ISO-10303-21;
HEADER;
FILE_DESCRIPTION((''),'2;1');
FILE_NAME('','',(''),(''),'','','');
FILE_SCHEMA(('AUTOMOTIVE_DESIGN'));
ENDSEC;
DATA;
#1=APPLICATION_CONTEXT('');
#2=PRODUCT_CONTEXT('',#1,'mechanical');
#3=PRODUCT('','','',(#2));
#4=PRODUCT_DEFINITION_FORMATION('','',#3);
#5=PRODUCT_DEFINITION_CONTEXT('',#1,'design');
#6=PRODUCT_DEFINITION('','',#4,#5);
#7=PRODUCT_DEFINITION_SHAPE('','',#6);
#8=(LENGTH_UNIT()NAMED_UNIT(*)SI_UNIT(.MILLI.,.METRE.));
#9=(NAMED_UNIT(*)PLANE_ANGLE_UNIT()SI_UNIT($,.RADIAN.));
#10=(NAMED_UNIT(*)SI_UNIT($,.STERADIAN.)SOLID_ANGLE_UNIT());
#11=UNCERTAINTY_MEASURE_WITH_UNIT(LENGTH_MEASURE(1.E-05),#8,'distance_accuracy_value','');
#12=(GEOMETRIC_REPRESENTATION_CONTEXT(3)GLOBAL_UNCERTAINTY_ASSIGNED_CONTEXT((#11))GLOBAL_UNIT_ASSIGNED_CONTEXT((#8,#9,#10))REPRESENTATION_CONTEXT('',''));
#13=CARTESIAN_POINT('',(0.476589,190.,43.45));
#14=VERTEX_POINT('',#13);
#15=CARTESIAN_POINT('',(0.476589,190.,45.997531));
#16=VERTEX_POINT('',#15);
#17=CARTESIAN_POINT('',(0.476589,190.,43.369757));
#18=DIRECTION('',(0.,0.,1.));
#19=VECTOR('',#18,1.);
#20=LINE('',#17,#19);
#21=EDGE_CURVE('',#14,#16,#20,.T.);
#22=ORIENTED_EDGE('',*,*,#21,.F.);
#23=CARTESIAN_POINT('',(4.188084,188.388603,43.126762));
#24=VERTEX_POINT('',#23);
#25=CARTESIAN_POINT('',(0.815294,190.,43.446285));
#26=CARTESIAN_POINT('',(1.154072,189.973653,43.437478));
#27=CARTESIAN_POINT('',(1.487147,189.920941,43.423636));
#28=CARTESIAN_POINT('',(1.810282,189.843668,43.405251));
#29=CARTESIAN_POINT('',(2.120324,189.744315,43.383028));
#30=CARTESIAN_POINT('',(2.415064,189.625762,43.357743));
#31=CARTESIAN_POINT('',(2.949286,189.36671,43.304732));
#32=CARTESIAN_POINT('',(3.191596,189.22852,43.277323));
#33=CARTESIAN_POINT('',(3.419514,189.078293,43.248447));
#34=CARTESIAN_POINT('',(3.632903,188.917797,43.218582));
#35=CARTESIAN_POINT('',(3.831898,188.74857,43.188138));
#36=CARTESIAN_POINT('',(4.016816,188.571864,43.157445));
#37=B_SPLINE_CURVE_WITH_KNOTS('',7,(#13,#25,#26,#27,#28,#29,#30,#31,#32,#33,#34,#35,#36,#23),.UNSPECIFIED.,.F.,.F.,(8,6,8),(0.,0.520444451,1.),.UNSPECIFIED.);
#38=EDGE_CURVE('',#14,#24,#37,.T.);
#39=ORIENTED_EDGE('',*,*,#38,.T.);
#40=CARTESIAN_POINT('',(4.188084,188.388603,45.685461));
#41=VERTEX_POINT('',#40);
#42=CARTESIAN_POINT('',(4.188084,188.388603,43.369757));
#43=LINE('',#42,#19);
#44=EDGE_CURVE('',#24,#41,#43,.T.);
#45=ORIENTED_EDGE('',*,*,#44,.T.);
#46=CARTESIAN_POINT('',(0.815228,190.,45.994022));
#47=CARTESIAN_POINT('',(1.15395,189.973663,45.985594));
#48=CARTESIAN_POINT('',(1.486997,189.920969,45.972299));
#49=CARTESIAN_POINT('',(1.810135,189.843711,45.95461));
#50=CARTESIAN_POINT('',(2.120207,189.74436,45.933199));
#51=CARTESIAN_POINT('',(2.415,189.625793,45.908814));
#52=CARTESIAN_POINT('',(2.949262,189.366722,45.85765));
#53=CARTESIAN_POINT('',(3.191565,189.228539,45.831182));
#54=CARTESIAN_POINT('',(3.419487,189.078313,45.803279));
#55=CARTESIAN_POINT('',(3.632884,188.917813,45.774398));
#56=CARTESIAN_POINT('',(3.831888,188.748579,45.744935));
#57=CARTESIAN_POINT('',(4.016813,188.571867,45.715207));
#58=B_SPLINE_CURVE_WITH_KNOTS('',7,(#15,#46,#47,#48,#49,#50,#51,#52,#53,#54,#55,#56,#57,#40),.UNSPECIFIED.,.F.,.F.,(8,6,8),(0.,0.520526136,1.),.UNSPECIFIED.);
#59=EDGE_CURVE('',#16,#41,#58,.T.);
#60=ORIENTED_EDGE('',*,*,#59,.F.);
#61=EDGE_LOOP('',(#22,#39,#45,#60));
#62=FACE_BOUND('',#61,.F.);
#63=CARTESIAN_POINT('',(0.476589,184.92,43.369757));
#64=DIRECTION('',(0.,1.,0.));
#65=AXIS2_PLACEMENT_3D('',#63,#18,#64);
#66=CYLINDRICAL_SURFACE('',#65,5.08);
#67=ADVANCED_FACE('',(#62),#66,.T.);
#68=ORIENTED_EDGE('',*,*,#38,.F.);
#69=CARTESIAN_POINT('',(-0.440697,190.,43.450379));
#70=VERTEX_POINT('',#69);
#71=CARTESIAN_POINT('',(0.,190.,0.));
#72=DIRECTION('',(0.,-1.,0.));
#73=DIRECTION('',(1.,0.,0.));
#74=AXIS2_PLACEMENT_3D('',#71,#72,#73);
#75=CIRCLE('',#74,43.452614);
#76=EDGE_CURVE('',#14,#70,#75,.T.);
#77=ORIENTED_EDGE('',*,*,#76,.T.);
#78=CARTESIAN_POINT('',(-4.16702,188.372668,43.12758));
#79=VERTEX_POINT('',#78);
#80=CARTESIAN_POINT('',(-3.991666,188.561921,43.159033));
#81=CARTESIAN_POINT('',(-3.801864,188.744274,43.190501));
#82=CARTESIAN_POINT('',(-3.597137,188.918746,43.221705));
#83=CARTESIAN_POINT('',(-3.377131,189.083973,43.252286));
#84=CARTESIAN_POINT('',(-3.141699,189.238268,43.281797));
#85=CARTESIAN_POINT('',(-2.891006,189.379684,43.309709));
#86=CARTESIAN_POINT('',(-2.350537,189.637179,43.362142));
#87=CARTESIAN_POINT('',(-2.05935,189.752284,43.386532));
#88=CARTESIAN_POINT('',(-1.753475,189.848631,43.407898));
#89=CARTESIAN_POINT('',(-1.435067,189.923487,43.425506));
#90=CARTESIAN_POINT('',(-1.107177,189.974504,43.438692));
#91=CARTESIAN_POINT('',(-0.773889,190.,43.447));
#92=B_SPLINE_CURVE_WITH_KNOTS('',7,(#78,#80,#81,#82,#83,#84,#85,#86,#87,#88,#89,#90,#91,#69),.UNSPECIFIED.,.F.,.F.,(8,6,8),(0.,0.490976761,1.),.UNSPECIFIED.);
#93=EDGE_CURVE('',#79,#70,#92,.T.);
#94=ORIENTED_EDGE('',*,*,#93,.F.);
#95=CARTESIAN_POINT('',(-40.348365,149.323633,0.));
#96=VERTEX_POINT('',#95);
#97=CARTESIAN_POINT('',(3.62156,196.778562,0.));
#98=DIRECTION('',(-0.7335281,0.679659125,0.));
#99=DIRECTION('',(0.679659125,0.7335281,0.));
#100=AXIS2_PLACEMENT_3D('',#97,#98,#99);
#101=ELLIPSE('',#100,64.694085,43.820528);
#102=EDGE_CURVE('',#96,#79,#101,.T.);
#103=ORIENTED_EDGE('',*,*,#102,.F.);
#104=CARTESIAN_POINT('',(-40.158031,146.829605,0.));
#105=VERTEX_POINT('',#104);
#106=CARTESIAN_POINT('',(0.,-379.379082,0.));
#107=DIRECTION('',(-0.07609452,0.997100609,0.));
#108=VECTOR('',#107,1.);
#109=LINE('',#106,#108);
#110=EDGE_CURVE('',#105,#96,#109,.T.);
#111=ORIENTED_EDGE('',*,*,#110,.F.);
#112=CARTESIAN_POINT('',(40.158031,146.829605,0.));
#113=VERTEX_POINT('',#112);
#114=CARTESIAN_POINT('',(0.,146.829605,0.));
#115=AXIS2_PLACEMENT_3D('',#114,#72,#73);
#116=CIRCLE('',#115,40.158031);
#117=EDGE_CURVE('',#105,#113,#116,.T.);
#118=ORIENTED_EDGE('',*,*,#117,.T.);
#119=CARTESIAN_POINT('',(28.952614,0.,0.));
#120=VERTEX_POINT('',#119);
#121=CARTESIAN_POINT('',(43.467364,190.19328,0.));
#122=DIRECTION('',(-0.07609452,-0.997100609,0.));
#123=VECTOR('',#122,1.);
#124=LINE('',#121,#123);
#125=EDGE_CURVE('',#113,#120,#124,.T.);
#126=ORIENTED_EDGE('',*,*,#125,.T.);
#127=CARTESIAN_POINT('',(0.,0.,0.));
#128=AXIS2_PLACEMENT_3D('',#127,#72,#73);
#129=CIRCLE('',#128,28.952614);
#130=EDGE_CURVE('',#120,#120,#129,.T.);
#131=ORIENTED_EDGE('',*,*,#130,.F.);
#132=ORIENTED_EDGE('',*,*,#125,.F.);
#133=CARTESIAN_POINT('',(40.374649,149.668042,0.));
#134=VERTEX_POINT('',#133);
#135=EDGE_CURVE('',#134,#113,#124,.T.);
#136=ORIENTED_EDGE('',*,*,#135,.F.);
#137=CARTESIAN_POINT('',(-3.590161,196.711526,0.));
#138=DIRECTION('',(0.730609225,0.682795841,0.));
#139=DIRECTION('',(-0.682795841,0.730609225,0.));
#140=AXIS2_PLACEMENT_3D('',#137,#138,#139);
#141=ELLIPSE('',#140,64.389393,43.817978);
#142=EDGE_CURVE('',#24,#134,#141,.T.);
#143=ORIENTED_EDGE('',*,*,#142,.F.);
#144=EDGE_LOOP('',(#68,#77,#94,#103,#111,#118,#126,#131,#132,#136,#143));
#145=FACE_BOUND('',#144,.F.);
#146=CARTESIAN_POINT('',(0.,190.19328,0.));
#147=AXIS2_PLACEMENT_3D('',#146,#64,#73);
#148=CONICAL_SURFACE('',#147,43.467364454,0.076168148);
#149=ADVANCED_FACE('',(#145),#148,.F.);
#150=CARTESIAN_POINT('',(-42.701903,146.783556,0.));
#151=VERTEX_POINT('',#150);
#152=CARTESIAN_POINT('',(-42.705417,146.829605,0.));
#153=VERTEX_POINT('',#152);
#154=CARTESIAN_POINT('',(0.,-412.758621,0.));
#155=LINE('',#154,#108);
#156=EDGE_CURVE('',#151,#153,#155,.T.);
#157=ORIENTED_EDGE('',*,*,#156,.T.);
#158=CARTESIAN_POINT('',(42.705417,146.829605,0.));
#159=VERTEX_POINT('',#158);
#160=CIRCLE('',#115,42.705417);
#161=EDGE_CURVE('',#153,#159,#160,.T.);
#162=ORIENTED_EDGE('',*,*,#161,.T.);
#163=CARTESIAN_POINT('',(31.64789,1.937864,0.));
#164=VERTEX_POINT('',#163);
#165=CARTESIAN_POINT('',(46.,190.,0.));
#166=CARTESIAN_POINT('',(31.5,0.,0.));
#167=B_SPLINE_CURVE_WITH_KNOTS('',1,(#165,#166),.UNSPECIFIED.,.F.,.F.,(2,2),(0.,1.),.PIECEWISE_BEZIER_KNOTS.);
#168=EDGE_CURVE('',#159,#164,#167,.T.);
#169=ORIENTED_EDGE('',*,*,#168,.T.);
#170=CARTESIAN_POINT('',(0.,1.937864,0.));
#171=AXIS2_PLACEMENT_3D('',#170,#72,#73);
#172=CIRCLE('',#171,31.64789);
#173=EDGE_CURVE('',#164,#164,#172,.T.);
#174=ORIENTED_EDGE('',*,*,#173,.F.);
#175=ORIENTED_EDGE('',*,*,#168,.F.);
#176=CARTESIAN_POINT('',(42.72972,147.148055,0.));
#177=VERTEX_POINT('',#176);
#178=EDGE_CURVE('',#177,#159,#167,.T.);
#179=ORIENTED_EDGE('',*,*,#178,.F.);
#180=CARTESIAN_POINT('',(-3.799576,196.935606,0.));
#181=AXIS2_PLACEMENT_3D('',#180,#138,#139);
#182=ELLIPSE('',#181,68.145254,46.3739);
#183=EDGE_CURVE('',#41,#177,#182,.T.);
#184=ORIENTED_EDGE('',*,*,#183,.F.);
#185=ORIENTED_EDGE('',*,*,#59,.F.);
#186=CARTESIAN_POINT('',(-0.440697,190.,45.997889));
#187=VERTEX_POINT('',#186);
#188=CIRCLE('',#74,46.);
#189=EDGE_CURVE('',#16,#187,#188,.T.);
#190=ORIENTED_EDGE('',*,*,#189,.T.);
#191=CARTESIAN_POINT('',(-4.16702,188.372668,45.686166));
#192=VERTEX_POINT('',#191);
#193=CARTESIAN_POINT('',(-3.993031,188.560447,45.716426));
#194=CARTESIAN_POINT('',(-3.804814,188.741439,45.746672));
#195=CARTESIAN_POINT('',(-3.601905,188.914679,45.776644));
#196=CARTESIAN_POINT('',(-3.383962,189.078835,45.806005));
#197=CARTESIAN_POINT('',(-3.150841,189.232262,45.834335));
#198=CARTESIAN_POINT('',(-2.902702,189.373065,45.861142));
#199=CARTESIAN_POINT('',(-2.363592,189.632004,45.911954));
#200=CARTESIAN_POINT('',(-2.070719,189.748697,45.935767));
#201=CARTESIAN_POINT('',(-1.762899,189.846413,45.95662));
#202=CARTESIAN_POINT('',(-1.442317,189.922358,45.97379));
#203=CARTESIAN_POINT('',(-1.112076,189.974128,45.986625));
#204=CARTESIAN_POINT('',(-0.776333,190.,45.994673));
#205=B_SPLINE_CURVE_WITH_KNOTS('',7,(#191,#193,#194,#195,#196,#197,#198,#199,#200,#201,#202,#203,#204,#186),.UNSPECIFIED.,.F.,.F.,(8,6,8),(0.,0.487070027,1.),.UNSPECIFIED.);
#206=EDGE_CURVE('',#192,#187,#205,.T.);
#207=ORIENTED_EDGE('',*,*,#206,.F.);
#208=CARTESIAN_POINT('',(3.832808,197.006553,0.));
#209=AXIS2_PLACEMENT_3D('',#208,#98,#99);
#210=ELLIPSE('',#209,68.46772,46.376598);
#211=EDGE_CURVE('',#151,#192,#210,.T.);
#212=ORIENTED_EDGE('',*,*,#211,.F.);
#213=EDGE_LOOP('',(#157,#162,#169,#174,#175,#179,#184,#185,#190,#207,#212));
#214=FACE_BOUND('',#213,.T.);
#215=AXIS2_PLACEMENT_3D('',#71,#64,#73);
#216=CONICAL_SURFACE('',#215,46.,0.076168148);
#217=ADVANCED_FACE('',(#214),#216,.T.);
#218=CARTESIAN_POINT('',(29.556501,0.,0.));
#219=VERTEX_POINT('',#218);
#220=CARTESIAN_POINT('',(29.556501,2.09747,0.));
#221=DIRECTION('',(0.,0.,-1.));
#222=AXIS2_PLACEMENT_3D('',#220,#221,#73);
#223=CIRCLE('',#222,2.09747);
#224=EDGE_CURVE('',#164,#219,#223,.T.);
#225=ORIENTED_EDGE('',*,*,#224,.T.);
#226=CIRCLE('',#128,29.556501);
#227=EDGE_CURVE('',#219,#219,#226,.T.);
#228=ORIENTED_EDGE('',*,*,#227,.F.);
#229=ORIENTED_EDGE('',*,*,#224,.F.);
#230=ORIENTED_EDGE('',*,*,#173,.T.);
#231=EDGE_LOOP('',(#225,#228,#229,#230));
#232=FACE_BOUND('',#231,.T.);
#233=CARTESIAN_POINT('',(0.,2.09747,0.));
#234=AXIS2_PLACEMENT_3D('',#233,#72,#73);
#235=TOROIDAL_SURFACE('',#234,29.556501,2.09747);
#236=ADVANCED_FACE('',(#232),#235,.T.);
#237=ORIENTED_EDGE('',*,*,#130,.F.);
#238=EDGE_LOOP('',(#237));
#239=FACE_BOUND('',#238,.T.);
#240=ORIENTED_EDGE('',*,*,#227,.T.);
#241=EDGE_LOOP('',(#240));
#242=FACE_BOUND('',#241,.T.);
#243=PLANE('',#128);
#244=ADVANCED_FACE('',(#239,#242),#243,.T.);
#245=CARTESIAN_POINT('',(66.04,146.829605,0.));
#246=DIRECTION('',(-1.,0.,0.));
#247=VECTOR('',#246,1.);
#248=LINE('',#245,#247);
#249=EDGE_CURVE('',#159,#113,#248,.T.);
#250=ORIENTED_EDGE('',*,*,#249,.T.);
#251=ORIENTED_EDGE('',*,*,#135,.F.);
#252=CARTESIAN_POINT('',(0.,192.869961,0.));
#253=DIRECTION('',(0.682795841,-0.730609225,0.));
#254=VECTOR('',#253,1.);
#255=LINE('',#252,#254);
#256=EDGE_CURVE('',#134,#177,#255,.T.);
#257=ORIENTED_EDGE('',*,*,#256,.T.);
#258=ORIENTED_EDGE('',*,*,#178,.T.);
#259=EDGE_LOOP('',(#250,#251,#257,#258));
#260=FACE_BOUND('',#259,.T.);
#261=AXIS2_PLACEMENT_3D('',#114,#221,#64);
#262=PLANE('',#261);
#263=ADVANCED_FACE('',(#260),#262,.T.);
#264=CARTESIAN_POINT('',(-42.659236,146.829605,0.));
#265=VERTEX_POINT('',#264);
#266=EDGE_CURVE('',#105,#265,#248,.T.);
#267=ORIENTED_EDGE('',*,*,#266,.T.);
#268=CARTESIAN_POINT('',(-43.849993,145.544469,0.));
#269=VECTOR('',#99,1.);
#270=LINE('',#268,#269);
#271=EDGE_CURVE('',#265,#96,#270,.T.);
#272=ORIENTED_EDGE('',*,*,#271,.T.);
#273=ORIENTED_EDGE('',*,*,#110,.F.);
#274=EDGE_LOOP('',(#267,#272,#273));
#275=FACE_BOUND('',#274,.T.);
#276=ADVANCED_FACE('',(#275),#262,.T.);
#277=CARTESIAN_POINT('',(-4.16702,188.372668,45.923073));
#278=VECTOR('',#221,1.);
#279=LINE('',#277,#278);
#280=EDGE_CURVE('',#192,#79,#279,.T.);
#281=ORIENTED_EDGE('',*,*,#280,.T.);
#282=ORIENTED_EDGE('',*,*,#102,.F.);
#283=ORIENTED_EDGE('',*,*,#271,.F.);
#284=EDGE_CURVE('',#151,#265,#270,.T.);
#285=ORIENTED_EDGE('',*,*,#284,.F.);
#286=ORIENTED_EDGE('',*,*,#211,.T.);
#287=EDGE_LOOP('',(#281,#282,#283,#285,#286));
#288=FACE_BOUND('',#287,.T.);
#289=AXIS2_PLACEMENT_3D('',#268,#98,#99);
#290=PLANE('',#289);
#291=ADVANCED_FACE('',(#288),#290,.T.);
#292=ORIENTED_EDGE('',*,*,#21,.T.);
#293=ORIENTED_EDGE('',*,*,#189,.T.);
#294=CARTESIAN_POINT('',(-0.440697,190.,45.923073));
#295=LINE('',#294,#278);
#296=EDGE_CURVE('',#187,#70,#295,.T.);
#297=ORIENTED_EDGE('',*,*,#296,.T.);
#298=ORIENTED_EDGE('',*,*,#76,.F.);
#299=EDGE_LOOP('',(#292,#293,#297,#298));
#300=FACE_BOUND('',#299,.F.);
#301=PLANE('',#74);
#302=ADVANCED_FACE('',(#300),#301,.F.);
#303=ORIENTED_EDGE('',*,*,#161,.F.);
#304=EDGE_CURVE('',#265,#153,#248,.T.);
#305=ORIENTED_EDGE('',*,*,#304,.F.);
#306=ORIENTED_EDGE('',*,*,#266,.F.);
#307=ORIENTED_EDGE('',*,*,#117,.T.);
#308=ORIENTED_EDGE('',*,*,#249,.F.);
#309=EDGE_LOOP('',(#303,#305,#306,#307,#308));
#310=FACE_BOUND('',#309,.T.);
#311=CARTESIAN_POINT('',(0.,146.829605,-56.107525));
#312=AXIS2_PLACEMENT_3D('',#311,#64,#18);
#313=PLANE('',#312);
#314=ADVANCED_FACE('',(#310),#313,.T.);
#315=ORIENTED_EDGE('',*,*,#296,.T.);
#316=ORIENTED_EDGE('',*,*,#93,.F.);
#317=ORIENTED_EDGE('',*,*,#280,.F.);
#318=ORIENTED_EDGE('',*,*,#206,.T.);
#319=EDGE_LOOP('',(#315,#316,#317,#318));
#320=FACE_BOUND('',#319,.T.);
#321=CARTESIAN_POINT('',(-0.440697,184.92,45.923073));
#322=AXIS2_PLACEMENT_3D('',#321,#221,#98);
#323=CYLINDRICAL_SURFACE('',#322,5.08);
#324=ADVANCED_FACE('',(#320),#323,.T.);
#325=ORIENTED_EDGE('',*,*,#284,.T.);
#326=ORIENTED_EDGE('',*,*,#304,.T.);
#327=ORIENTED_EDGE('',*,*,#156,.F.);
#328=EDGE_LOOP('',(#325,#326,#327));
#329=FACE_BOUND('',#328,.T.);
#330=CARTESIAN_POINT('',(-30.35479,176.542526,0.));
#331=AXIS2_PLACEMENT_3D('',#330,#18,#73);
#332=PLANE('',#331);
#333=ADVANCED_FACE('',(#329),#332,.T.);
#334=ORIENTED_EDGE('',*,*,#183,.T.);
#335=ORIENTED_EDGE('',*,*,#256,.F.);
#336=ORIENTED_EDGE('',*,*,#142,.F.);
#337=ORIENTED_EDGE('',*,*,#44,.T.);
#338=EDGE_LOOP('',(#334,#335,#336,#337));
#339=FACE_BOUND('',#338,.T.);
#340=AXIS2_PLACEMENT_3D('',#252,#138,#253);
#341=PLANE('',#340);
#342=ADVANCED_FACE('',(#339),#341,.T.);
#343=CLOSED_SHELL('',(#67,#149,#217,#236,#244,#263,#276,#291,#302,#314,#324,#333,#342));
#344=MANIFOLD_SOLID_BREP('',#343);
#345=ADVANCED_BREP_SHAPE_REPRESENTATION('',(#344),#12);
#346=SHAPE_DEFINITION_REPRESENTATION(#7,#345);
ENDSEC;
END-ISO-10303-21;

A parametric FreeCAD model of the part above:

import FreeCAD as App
import Part
import Sketcher


def edges_at(feature, points):
    """Names of the edges that pass closest to the given points."""
    edges = feature.Shape.Edges
    near = lambda p: min(range(len(edges)), key=lambda i: edges[i].distToShape(Part.Vertex(*p))[0])
    return sorted({f"Edge{near(p) + 1}" for p in points})


def faces_at(feature, points):
    """Names of the faces that lie closest to the given points."""
    faces = feature.Shape.Faces
    near = lambda p: min(range(len(faces)), key=lambda i: faces[i].distToShape(Part.Vertex(*p))[0])
    return sorted({f"Face{near(p) + 1}" for p in points})

doc = App.newDocument("Part")
params = doc.addObject("Spreadsheet::Sheet", "Params")
for row, (alias, value) in enumerate([
    ("thickness_wall", "0.1 in"),
    ("pocket1_length", "2.7 in"),
    ("pocket2_length", "5.2 in"),
    ("fillet_radius", "0.2 in"),
    ("fillet2_radius", "2.09747 mm"),
], start=1):
    params.set(f"A{row}", alias)
    params.set(f"B{row}", "=" + value)
    params.setAlias(f"B{row}", alias)

body = doc.addObject("PartDesign::Body", "Body")

# Sketch on XZ plane
sketch1 = doc.addObject("Sketcher::SketchObject", "Sketch")
body.addObject(sketch1)
sketch1.AttachmentSupport = (doc.XZ_Plane, [""])
sketch1.MapMode = "FlatFace"
sketch1.AttachmentOffset = App.Placement(App.Vector(0, 0, -190), App.Rotation())
sketch1.addGeometry(Part.Circle(App.Vector(0, 0, 0), App.Vector(0, 0, 1), 46), False)
sketch1.addConstraint([
    Sketcher.Constraint("Coincident", 0, 3, -1, 1),
    Sketcher.Constraint("Diameter", 0, 92.0),
])

# Sketch on XZ plane
sketch2 = doc.addObject("Sketcher::SketchObject", "Sketch001")
body.addObject(sketch2)
sketch2.AttachmentSupport = (doc.XZ_Plane, [""])
sketch2.MapMode = "FlatFace"
sketch2.addGeometry(Part.Circle(App.Vector(0, 0, 0), App.Vector(0, 0, 1), 31.5), False)
sketch2.addConstraint([
    Sketcher.Constraint("Coincident", 0, 3, -1, 1),
    Sketcher.Constraint("Diameter", 0, 63.0),
])

additiveloft = doc.addObject("PartDesign::AdditiveLoft", "AdditiveLoft")
body.addObject(additiveloft)
additiveloft.Profile = sketch1
additiveloft.Sections = [sketch2]
doc.recompute()

thickness = doc.addObject("PartDesign::Thickness", "Thickness")
body.addObject(thickness)
thickness.Base = (additiveloft, faces_at(additiveloft, [(0, 0, 0), (0, 190, 0)]))
thickness.setExpression("Value", "Params.thickness_wall")
thickness.Reversed = True
thickness.Join = "Intersection"

# Sketch on XY plane
sketch3 = doc.addObject("Sketcher::SketchObject", "Sketch002")
body.addObject(sketch3)
sketch3.AttachmentSupport = (doc.XY_Plane, [""])
sketch3.MapMode = "FlatFace"
sketch3.addGeometry([
    Part.LineSegment(App.Vector(-50.452904, 192.869961, 0), App.Vector(-43.849993, 145.544469, 0)),  # 0
    Part.LineSegment(App.Vector(-43.849993, 145.544469, 0), App.Vector(0, 192.869961, 0)),  # 1
    Part.LineSegment(App.Vector(0, 192.869961, 0), App.Vector(-50.452904, 192.869961, 0)),  # 2
    Part.LineSegment(App.Vector(49.811707, 192.869961, 0), App.Vector(0, 192.869961, 0)),  # 3
    Part.LineSegment(App.Vector(0, 192.869961, 0), App.Vector(44.228362, 145.544469, 0)),  # 4
    Part.LineSegment(App.Vector(44.228362, 145.544469, 0), App.Vector(49.811707, 192.869961, 0)),  # 5
], False)
sketch3.addConstraint([
    Sketcher.Constraint("Coincident", 0, 2, 1, 1),
    Sketcher.Constraint("Coincident", 1, 2, 2, 1),
    Sketcher.Constraint("Coincident", 2, 2, 0, 1),
    Sketcher.Constraint("Coincident", 3, 2, 4, 1),
    Sketcher.Constraint("Coincident", 4, 2, 5, 1),
    Sketcher.Constraint("Coincident", 5, 2, 3, 1),
    Sketcher.Constraint("Horizontal", 2),
    Sketcher.Constraint("Horizontal", 3),
    Sketcher.Constraint("Coincident", 3, 2, 1, 2),
    Sketcher.Constraint("PointOnObject", 1, 2, -2),
    Sketcher.Constraint("Horizontal", 0, 2, 4, 2),
    Sketcher.Constraint("DistanceX", 0, 2, 5, 2, 93.661701),
    Sketcher.Constraint("Distance", 5, 47.653708),
    Sketcher.Constraint("DistanceX", 2, 2, 2, 1, 50.452904),
    Sketcher.Constraint("DistanceX", 3, 2, 3, 1, 49.811707),
    Sketcher.Constraint("DistanceY", -1, 1, 0, 2, 145.544469),
    Sketcher.Constraint("DistanceY", -1, 1, 1, 2, 192.869961),
])
pocket1 = doc.addObject("PartDesign::Pocket", "Pocket")
body.addObject(pocket1)
pocket1.Profile = sketch3
pocket1.setExpression("Length", "Params.pocket1_length")
pocket1.Reversed = True

# Sketch on YZ plane
sketch4 = doc.addObject("Sketcher::SketchObject", "Sketch003")
body.addObject(sketch4)
sketch4.AttachmentSupport = (doc.YZ_Plane, [""])
sketch4.MapMode = "FlatFace"
sketch4.addGeometry([
    Part.LineSegment(App.Vector(146.829605, 0, 0), App.Vector(146.829605, -56.107525, 0)),
    Part.LineSegment(App.Vector(146.829605, -56.107525, 0), App.Vector(190.557837, -56.107525, 0)),
    Part.LineSegment(App.Vector(190.557837, -56.107525, 0), App.Vector(190.557837, 0, 0)),
    Part.LineSegment(App.Vector(190.557837, 0, 0), App.Vector(146.829605, 0, 0)),
], False)
sketch4.addConstraint([
    Sketcher.Constraint("Coincident", 0, 2, 1, 1),
    Sketcher.Constraint("Coincident", 1, 2, 2, 1),
    Sketcher.Constraint("Coincident", 2, 2, 3, 1),
    Sketcher.Constraint("Coincident", 3, 2, 0, 1),
    Sketcher.Constraint("Vertical", 0),
    Sketcher.Constraint("Horizontal", 1),
    Sketcher.Constraint("Vertical", 2),
    Sketcher.Constraint("Horizontal", 3),
    Sketcher.Constraint("PointOnObject", 2, 2, -1),
    Sketcher.Constraint("DistanceX", 1, 1, 1, 2, 43.728232),
    Sketcher.Constraint("DistanceY", 0, 2, 0, 1, 56.107525),
    Sketcher.Constraint("DistanceX", -1, 1, 0, 2, 146.829605),
])
pocket2 = doc.addObject("PartDesign::Pocket", "Pocket001")
body.addObject(pocket2)
pocket2.Profile = sketch4
pocket2.setExpression("Length", "Params.pocket2_length")
pocket2.Midplane = True
doc.recompute()

fillet = doc.addObject("PartDesign::Fillet", "Fillet")
body.addObject(fillet)
fillet.Base = (pocket2, edges_at(pocket2, [(-2.659, 190, 44.647), (2.682, 190, 44.646)]))
fillet.setExpression("Radius", "Params.fillet_radius")
doc.recompute()

fillet2 = doc.addObject("PartDesign::Fillet", "Fillet001")
body.addObject(fillet2)
fillet2.Base = (fillet, edges_at(fillet, [(-31.5, 0, 0)]))
fillet2.setExpression("Radius", "Params.fillet2_radius")

doc.recompute()
